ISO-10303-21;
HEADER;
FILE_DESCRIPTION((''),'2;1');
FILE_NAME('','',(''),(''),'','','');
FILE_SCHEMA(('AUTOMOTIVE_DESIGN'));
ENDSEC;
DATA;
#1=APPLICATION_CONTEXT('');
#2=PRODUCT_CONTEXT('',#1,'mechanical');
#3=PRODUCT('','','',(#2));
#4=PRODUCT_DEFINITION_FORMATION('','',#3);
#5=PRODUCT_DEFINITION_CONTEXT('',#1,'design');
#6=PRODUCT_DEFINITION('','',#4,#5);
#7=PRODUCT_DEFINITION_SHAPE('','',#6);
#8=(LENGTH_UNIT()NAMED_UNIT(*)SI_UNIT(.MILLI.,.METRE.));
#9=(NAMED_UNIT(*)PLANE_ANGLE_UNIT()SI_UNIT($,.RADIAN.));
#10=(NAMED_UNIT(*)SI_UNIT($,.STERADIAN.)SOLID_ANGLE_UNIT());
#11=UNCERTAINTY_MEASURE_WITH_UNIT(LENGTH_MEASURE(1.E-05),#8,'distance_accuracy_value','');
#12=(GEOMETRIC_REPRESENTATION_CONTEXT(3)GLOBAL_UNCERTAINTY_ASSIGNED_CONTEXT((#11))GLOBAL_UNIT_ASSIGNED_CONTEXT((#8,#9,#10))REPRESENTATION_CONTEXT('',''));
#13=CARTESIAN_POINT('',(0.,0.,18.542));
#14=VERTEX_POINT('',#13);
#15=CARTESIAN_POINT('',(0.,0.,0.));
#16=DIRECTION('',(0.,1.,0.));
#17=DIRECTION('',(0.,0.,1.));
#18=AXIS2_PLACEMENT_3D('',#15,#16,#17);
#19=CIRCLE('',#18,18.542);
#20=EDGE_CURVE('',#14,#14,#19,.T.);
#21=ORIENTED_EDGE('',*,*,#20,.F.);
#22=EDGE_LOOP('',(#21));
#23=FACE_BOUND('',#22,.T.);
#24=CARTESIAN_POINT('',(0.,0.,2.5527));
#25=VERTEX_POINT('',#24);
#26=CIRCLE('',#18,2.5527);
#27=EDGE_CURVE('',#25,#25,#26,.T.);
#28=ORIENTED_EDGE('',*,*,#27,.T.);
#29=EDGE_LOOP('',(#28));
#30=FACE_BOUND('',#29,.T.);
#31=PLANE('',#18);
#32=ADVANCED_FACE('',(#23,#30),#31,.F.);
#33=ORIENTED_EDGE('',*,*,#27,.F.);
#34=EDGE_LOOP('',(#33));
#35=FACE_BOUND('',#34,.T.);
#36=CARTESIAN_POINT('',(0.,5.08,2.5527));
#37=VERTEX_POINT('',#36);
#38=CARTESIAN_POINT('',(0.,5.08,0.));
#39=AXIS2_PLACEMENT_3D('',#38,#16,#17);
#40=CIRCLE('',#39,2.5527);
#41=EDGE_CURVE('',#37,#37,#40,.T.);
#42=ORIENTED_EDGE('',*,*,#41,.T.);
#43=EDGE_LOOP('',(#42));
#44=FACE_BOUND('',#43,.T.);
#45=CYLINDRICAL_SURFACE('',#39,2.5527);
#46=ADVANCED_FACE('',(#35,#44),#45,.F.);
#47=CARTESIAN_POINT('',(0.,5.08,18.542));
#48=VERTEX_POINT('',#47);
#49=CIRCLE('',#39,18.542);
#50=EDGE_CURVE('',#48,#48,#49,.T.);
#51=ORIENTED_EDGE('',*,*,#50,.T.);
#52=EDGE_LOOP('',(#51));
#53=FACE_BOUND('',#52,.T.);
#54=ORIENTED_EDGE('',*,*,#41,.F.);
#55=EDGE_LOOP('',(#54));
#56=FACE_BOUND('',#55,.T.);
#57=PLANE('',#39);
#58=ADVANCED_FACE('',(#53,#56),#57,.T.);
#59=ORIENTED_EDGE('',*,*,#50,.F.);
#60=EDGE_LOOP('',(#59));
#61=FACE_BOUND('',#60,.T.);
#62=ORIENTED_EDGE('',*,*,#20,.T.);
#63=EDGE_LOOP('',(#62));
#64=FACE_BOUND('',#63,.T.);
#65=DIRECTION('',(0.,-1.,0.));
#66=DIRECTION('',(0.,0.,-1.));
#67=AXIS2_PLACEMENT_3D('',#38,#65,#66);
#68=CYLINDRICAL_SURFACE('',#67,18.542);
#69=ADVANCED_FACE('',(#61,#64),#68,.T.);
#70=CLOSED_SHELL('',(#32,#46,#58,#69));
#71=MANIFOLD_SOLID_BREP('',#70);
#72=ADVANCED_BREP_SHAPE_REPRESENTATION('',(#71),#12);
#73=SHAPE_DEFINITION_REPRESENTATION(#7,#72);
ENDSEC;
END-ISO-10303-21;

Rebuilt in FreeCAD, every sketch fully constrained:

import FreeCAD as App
import Part
import Sketcher

V = App.Vector
Q = App.Units.Quantity

doc = App.newDocument("Part")
body = doc.addObject("PartDesign::Body", "Body")

sketch1 = body.newObject("Sketcher::SketchObject", "Sketch")
sketch1.AttachmentSupport = (doc.getObject("XZ_Plane"), [""])
sketch1.MapMode = "FlatFace"
sketch1.addGeometry(Part.Circle(V(0, 0, 0), V(0, 0, 1), 19), False)
sketch1.addConstraint(Sketcher.Constraint("Coincident", 0, 3, -1, 1))
sketch1.addConstraint(Sketcher.Constraint("Diameter", 0, Q("1.46 in")))
pad1 = body.newObject("PartDesign::Pad", "Pad")
pad1.Profile = sketch1
pad1.Length = Q("0.2 in")
pad1.Reversed = True

sketch2 = body.newObject("Sketcher::SketchObject", "Sketch001")
sketch2.AttachmentSupport = (doc.getObject("XZ_Plane"), [""])
sketch2.MapMode = "FlatFace"
sketch2.AttachmentOffset = App.Placement(V(0, 0, -0.2 * 25.4), App.Rotation())
sketch2.addGeometry(Part.Circle(V(0, 0, 0), V(0, 0, 1), 2.6), False)
sketch2.addConstraint(Sketcher.Constraint("Coincident", 0, 3, -1, 1))
sketch2.addConstraint(Sketcher.Constraint("Diameter", 0, Q("0.201 in")))
doc.recompute()
hole = body.newObject("PartDesign::Hole", "Hole")
hole.Profile = sketch2
hole.ThreadType = "None"
hole.Diameter = Q("0.201 in")
hole.DepthType = "ThroughAll"
hole.Reversed = True

doc.recompute()
